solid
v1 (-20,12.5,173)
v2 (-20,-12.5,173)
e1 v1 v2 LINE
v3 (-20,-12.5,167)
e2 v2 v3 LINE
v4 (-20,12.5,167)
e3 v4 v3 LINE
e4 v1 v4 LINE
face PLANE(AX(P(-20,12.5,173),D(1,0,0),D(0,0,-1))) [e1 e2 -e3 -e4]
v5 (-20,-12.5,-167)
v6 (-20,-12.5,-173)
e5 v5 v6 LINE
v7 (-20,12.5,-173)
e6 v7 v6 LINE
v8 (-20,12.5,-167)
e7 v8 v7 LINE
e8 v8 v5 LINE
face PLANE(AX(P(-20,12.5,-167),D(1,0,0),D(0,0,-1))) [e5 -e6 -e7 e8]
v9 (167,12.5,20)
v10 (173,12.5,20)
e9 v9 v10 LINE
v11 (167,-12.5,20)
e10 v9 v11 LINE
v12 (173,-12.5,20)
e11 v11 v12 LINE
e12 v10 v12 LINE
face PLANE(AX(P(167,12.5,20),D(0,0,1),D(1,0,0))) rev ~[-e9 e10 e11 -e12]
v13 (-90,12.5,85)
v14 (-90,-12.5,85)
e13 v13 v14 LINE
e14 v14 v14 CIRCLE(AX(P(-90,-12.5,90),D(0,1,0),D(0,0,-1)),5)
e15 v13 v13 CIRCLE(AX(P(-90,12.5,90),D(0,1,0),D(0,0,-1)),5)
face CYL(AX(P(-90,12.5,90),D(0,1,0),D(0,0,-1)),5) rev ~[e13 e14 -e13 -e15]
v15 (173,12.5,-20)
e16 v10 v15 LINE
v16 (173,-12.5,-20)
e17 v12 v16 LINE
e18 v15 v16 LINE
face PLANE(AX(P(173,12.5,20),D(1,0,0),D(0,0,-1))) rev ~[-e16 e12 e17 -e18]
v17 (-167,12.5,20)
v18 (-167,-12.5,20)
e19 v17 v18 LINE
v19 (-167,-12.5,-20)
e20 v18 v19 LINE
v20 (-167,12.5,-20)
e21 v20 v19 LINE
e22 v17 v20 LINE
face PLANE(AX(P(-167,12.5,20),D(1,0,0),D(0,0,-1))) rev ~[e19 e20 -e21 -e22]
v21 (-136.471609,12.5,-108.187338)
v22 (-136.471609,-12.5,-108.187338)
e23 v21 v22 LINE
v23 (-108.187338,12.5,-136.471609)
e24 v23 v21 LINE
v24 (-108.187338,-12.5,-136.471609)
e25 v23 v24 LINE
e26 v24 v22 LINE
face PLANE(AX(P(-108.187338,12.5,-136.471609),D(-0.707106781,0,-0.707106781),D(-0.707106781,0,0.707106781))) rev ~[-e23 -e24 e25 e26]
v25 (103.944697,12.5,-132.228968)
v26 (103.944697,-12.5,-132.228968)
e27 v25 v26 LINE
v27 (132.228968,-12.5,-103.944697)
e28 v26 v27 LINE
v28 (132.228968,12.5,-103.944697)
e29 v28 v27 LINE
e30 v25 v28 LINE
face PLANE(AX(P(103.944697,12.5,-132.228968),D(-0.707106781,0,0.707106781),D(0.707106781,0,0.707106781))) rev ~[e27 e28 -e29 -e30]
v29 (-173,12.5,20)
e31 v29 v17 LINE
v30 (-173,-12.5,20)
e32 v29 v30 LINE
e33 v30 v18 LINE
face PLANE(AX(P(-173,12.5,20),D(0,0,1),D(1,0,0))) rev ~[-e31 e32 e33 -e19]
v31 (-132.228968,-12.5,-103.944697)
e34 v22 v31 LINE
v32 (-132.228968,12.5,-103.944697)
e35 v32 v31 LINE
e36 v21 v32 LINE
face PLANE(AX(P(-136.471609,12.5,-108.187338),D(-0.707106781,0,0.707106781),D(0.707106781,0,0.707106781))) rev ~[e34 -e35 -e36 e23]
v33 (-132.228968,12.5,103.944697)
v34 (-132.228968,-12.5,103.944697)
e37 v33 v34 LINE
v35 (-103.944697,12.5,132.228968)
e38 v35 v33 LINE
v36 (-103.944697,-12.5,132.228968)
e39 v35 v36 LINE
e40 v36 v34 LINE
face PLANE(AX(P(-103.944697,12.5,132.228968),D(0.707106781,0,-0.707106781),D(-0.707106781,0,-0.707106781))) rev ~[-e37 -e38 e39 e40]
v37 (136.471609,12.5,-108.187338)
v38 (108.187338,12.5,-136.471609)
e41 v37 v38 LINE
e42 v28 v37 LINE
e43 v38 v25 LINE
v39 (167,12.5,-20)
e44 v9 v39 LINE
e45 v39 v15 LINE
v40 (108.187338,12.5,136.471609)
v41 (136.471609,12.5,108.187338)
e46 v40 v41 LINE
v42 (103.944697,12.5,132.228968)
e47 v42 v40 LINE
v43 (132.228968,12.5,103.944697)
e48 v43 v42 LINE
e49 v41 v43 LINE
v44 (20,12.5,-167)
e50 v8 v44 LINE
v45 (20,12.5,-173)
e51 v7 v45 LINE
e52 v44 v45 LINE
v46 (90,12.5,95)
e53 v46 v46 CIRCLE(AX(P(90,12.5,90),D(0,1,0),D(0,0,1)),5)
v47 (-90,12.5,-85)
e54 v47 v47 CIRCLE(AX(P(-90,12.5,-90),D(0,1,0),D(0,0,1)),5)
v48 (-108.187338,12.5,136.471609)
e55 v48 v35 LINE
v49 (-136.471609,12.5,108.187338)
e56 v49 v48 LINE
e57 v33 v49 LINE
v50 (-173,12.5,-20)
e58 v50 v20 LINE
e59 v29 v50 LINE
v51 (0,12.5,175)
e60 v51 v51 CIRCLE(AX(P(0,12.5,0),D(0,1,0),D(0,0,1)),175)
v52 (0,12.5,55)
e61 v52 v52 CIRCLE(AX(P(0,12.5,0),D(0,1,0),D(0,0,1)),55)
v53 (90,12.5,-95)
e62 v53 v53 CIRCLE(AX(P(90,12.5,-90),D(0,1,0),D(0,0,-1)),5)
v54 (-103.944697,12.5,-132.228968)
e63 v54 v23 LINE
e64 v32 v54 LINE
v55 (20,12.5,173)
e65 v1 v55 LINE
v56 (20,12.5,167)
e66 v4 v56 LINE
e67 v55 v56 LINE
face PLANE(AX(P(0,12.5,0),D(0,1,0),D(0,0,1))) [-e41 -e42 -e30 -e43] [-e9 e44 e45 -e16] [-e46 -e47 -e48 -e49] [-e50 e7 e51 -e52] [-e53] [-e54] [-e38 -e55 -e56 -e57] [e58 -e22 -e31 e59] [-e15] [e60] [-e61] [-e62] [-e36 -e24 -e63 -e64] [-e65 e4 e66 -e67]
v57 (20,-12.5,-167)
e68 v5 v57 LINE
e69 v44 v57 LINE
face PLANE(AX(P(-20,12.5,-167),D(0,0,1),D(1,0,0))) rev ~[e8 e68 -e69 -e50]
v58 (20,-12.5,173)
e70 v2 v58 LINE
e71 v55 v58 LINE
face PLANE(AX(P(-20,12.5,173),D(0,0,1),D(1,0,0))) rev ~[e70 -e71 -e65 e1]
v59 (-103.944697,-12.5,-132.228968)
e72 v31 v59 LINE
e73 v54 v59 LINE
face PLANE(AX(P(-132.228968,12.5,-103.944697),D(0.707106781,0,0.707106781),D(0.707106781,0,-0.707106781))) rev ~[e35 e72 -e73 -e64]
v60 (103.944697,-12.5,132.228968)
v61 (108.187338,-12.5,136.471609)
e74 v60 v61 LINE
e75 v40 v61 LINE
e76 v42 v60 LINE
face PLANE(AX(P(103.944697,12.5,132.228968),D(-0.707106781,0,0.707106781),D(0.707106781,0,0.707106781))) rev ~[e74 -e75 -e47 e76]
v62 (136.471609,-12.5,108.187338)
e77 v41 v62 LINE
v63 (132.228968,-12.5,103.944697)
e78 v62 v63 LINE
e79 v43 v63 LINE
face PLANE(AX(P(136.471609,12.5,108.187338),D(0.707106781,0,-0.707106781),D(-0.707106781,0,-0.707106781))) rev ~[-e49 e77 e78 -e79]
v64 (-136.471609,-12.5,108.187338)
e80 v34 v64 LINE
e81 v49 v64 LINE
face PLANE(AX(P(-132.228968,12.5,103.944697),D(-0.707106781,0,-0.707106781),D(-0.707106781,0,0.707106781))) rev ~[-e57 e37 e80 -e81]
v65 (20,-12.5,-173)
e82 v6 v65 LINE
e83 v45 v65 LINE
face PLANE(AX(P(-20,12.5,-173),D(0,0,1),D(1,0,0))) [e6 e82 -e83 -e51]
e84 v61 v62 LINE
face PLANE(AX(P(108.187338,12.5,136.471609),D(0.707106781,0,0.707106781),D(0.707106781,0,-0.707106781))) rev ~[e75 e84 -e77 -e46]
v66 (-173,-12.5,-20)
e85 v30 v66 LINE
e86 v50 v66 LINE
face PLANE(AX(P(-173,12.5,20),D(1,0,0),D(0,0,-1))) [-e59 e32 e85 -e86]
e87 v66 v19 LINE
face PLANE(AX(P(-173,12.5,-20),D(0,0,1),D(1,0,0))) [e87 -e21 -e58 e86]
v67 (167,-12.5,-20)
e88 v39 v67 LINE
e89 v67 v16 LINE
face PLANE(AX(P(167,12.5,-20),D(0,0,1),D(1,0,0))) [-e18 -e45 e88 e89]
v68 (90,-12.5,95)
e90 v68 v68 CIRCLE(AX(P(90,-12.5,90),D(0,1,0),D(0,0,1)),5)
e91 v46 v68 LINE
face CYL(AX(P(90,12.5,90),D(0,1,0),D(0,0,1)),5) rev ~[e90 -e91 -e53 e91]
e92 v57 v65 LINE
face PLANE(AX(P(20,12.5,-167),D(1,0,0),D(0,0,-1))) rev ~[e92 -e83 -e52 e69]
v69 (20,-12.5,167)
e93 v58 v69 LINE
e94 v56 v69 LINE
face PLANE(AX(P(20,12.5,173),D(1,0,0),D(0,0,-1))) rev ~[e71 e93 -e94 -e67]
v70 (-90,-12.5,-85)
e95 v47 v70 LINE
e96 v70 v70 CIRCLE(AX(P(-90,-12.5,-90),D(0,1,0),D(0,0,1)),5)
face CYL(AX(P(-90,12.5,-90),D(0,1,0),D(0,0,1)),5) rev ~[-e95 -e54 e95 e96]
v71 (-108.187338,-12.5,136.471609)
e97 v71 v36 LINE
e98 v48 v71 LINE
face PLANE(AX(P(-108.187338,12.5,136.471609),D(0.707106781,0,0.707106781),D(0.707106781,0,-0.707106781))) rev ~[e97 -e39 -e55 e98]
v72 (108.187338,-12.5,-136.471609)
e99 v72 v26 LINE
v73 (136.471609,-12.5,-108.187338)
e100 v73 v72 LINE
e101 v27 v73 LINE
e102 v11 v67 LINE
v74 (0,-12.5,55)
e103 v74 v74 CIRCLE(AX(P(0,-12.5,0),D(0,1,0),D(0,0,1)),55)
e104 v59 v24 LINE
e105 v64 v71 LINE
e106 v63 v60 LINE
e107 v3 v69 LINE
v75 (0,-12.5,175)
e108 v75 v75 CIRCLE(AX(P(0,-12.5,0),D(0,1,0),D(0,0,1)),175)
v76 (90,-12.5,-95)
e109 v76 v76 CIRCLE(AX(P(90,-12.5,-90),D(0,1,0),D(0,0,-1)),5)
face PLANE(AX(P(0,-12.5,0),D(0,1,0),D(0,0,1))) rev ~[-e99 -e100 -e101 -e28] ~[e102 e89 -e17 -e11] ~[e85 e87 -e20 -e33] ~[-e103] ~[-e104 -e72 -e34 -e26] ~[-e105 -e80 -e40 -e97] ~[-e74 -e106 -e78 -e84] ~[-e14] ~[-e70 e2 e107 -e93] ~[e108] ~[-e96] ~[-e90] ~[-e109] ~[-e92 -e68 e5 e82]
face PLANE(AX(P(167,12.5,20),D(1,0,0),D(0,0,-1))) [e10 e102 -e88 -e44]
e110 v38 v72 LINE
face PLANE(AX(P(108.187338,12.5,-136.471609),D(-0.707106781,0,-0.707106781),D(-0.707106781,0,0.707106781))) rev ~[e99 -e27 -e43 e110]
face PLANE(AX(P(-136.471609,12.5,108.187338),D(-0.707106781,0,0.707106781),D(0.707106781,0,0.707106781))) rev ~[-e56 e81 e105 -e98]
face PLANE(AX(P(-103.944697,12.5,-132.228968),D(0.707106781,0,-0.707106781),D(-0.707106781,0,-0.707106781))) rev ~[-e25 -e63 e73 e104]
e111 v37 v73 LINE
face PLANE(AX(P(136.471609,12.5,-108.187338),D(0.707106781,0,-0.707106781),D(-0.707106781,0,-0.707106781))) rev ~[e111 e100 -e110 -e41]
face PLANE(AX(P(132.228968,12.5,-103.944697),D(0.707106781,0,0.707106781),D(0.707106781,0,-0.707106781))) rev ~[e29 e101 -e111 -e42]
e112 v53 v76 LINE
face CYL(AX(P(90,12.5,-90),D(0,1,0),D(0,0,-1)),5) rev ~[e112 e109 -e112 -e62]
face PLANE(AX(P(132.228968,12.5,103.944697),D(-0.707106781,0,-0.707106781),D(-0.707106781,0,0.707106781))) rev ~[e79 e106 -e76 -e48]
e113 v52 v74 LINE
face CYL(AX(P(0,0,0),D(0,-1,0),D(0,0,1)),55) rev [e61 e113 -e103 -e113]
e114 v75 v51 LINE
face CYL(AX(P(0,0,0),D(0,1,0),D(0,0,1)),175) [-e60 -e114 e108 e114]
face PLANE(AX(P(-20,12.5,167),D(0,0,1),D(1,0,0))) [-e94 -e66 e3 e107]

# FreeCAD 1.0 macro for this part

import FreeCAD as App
import Part
import Sketcher
Q = App.Units.Quantity


def add_polygon(sketch, points):
    """Adds a closed chain of lines whose ends are joined by coincident constraints."""
    first, n = sketch.GeometryCount, len(points)
    for a, b in zip(points, points[1:] + points[:1]):
        sketch.addGeometry(Part.LineSegment(App.Vector(*a, 0), App.Vector(*b, 0)), False)
    for i in range(n):
        sketch.addConstraint(Sketcher.Constraint("Coincident", first + i, 2, first + (i + 1) % n, 1))

doc = App.newDocument("Part")
body = doc.addObject("PartDesign::Body", "Body")

# Sketch on XZ plane
sketch1 = body.newObject("Sketcher::SketchObject", "Sketch")
sketch1.AttachmentSupport = (doc.getObject("XZ_Plane"), [""])
sketch1.MapMode = "FlatFace"
sketch1.addGeometry([
    Part.Circle(App.Vector(0, 0, 0), App.Vector(0, 0, 1), 175),
    Part.Circle(App.Vector(0, 0, 0), App.Vector(0, 0, 1), 55),
], False)
sketch1.addConstraint([
    Sketcher.Constraint("Coincident", 0, 3, -1, 1),
    Sketcher.Constraint("Coincident", 1, 3, -1, 1),
    Sketcher.Constraint("Diameter", 0, Q("350 mm")),
    Sketcher.Constraint("Diameter", 1, Q("110 mm")),
])
pad1 = body.newObject("PartDesign::Pad", "Pad")
pad1.Profile = sketch1
pad1.Length = 25
pad1.Midplane = True

# Sketch on XZ plane
sketch2 = body.newObject("Sketcher::SketchObject", "Sketch001")
sketch2.AttachmentSupport = (doc.getObject("XZ_Plane"), [""])
sketch2.MapMode = "FlatFace"
sketch2.AttachmentOffset = App.Placement(App.Vector(0, 0, -12.5), App.Rotation())
add_polygon(sketch2, [(-20, -173), (-20, -167), (20, -167), (20, -173)])  # lines 0-3
add_polygon(sketch2, [(104, -132), (132, -104), (136, -108), (108, -136)])  # lines 4-7
add_polygon(sketch2, [(167, -20), (167, 20), (173, 20), (173, -20)])  # lines 8-11
add_polygon(sketch2, [(132, 104), (104, 132), (108, 136), (136, 108)])  # lines 12-15
add_polygon(sketch2, [(-20, 167), (-20, 173), (20, 173), (20, 167)])  # lines 16-19
add_polygon(sketch2, [(-104, 132), (-132, 104), (-136, 108), (-108, 136)])  # lines 20-23
add_polygon(sketch2, [(-173, -20), (-173, 20), (-167, 20), (-167, -20)])  # lines 24-27
add_polygon(sketch2, [(-132, -104), (-104, -132), (-108, -136), (-136, -108)])  # lines 28-31
sketch2.addConstraint([
    Sketcher.Constraint("Vertical", 0),
    Sketcher.Constraint("Horizontal", 1),
    Sketcher.Constraint("Vertical", 2),
    Sketcher.Constraint("Horizontal", 3),
    Sketcher.Constraint("Vertical", 8),
    Sketcher.Constraint("Horizontal", 9),
    Sketcher.Constraint("Vertical", 10),
    Sketcher.Constraint("Horizontal", 11),
    Sketcher.Constraint("Vertical", 16),
    Sketcher.Constraint("Horizontal", 17),
    Sketcher.Constraint("Vertical", 18),
    Sketcher.Constraint("Horizontal", 19),
    Sketcher.Constraint("Vertical", 24),
    Sketcher.Constraint("Horizontal", 25),
    Sketcher.Constraint("Vertical", 26),
    Sketcher.Constraint("Horizontal", 27),
    Sketcher.Constraint("Symmetric", 2, 2, 16, 2, -1, 1),
    Sketcher.Constraint("Symmetric", 0, 2, 18, 2, -1, 1),
    Sketcher.Constraint("Symmetric", 4, 2, 20, 2, -1, 1),
    Sketcher.Constraint("Symmetric", 5, 2, 21, 2, -1, 1),
    Sketcher.Constraint("Symmetric", 6, 2, 22, 2, -1, 1),
    Sketcher.Constraint("Symmetric", 7, 2, 23, 2, -1, 1),
    Sketcher.Constraint("Symmetric", 10, 2, 24, 2, -1, 1),
    Sketcher.Constraint("Symmetric", 8, 2, 26, 2, -1, 1),
    Sketcher.Constraint("Symmetric", 12, 2, 28, 2, -1, 1),
    Sketcher.Constraint("Symmetric", 13, 2, 29, 2, -1, 1),
    Sketcher.Constraint("Symmetric", 14, 2, 30, 2, -1, 1),
    Sketcher.Constraint("Symmetric", 15, 2, 31, 2, -1, 1),
    Sketcher.Constraint("Symmetric", 15, 2, 20, 2, -2),
    Sketcher.Constraint("Symmetric", 14, 2, 21, 2, -2),
    Sketcher.Constraint("Symmetric", 13, 2, 22, 2, -2),
    Sketcher.Constraint("Symmetric", 12, 2, 23, 2, -2),
    Sketcher.Constraint("Perpendicular", 4, 5),
    Sketcher.Constraint("Perpendicular", 5, 6),
    Sketcher.Constraint("Perpendicular", 6, 7),
    Sketcher.Constraint("Parallel", 7, 12),
    Sketcher.Constraint("Horizontal", 9, 2, 24, 2),
    Sketcher.Constraint("Vertical", 3, 2, 16, 2),
    Sketcher.Constraint("Equal", 27, 0),
    Sketcher.Constraint("Equal", 19, 8),
    Sketcher.Constraint("DistanceX", 1, 1, 1, 2, Q("40 mm")),
    Sketcher.Constraint("DistanceX", 9, 1, 9, 2, Q("6 mm")),
    Sketcher.Constraint("Distance", 4, Q("40 mm")),
    Sketcher.Constraint("Distance", 5, Q("6 mm")),
    Sketcher.Constraint("DistanceY", 0, 2, -1, 1, Q("167 mm")),
    Sketcher.Constraint("DistanceX", -1, 1, 8, 2, Q("167 mm")),
    Sketcher.Constraint("DistanceX", -1, 1, 4, 2, Q("132.228968 mm")),
    Sketcher.Constraint("DistanceY", 6, 2, -1, 1, Q("136.471609 mm")),
])
pocket1 = body.newObject("PartDesign::Pocket", "Pocket")
pocket1.Profile = sketch2
pocket1.Type = "ThroughAll"
pocket1.Reversed = True

# Sketch on XZ plane
sketch3 = body.newObject("Sketcher::SketchObject", "Sketch002")
sketch3.AttachmentSupport = (doc.getObject("XZ_Plane"), [""])
sketch3.MapMode = "FlatFace"
sketch3.AttachmentOffset = App.Placement(App.Vector(0, 0, -12.5), App.Rotation())
sketch3.addGeometry([
    Part.Circle(App.Vector(-90, -90, 0), App.Vector(0, 0, 1), 5),
    Part.Circle(App.Vector(90, -90, 0), App.Vector(0, 0, 1), 5),
    Part.Circle(App.Vector(90, 90, 0), App.Vector(0, 0, 1), 5),
    Part.Circle(App.Vector(-90, 90, 0), App.Vector(0, 0, 1), 5),
], False)
sketch3.addConstraint([
    Sketcher.Constraint("Equal", 0, 1),
    Sketcher.Constraint("Equal", 1, 2),
    Sketcher.Constraint("Equal", 2, 3),
    Sketcher.Constraint("Symmetric", 0, 3, 2, 3, -1, 1),
    Sketcher.Constraint("Symmetric", 1, 3, 3, 3, -1, 1),
    Sketcher.Constraint("Symmetric", 0, 3, 1, 3, -2),
    Sketcher.Constraint("Diameter", 0, Q("10 mm")),
    Sketcher.Constraint("DistanceX", 0, 3, -1, 1, Q("90 mm")),
    Sketcher.Constraint("DistanceY", 0, 3, -1, 1, Q("90 mm")),
])
pocket2 = body.newObject("PartDesign::Pocket", "Pocket001")
pocket2.Profile = sketch3
pocket2.Type = "ThroughAll"
pocket2.Reversed = True

doc.recompute()
